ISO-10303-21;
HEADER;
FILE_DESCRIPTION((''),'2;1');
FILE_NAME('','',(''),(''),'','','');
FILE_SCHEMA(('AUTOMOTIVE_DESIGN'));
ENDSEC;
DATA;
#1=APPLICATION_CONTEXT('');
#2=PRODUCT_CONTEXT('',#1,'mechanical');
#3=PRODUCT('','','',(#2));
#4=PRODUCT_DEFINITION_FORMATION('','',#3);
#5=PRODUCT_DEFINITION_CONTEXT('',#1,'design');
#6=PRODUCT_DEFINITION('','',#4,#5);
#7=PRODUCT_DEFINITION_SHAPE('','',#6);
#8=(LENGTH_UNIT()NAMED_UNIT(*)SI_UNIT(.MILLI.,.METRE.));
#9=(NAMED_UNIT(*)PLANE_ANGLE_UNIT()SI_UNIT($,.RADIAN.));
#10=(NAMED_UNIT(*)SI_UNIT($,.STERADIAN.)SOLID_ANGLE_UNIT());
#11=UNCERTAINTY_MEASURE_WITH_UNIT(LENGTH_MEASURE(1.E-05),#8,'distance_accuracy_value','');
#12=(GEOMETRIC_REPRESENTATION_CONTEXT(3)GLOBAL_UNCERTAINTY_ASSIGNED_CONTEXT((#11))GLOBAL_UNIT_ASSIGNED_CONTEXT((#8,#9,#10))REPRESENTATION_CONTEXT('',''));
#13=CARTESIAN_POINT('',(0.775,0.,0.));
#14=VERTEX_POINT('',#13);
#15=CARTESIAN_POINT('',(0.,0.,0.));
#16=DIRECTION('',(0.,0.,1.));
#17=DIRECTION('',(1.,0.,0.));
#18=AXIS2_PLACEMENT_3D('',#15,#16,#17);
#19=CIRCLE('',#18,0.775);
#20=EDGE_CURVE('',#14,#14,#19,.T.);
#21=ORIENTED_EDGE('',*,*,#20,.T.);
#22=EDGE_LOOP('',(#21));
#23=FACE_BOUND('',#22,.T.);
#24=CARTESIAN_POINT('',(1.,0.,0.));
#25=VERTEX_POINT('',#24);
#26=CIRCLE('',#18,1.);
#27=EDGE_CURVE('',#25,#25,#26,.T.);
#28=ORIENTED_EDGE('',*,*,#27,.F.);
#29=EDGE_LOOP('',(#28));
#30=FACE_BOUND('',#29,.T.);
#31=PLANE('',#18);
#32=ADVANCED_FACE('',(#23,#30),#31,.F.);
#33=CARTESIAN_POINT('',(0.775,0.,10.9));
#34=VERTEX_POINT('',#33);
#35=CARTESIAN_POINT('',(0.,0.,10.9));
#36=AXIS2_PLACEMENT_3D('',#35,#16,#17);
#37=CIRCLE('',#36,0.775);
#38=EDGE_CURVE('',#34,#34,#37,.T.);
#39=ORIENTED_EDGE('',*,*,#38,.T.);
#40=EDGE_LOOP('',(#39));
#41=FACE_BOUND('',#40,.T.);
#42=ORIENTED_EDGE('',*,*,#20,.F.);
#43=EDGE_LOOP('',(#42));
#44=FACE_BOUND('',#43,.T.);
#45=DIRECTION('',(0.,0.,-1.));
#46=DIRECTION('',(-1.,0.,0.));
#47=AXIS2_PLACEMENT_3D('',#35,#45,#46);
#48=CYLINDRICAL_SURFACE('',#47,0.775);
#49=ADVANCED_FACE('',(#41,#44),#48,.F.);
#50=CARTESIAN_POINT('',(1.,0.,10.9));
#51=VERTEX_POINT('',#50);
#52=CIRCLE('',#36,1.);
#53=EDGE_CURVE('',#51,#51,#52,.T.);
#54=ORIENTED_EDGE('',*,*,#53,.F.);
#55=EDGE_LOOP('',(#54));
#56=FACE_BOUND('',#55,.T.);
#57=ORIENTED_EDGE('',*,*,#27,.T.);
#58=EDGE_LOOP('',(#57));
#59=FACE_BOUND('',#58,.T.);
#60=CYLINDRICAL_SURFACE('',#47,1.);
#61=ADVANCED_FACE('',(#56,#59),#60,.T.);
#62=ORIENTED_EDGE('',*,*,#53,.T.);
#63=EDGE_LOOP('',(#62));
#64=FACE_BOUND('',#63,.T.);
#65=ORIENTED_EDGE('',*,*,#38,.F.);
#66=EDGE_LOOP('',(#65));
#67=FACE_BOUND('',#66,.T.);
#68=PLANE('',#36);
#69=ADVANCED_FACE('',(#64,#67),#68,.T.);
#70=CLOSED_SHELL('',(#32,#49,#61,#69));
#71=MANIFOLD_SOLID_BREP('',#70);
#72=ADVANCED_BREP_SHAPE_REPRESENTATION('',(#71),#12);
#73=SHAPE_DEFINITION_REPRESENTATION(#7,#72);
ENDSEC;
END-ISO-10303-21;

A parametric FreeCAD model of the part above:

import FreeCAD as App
import Part
import Sketcher

V = App.Vector

doc = App.newDocument("Part")
body = doc.addObject("PartDesign::Body", "Body")

# Sketch on XY plane
sketch1 = doc.addObject("Sketcher::SketchObject", "Sketch")
body.addObject(sketch1)
sketch1.AttachmentSupport = (doc.XY_Plane, [""])
sketch1.MapMode = "FlatFace"
sketch1.addGeometry(Part.Circle(V(0, 0, 0), V(0, 0, 1), 1), False)
sketch1.addGeometry(Part.Circle(V(0, 0, 0), V(0, 0, 1), 0.8), False)
sketch1.addConstraint(Sketcher.Constraint("Coincident", 0, 3, -1, 1))
sketch1.addConstraint(Sketcher.Constraint("Coincident", 1, 3, -1, 1))
sketch1.addConstraint(Sketcher.Constraint("Diameter", 0, 2.0))
sketch1.addConstraint(Sketcher.Constraint("Diameter", 1, 1.55))
pad1 = doc.addObject("PartDesign::Pad", "Pad")
body.addObject(pad1)
pad1.Profile = sketch1
pad1.Length = 10.9

doc.recompute()
